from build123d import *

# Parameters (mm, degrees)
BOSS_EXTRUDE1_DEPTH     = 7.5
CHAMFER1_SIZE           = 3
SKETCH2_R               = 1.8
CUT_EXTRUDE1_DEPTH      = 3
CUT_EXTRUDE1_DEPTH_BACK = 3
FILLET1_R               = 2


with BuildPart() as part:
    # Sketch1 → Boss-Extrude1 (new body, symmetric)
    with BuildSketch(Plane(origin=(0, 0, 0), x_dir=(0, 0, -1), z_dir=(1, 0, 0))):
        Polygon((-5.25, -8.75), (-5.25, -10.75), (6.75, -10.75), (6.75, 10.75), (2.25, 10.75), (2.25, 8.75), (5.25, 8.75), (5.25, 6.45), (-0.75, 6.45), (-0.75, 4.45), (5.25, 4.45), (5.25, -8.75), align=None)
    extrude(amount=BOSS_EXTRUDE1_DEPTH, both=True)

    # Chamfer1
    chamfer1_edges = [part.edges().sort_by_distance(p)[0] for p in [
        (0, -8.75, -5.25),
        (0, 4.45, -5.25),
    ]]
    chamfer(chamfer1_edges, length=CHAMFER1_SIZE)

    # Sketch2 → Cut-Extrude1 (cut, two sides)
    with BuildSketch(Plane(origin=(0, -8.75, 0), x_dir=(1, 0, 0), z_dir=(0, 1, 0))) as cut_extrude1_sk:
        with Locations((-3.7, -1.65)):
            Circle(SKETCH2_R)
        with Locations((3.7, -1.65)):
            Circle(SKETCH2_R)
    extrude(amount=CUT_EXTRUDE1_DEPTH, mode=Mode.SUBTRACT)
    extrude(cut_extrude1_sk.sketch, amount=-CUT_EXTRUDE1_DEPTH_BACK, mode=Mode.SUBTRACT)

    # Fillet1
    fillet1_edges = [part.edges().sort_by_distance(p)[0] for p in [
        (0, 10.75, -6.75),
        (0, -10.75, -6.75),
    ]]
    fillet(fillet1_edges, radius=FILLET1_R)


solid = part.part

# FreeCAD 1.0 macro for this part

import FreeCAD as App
import Part
import Sketcher
from FreeCAD import Vector


def edges_at(feature, points):
    """Names of the edges that pass closest to the given points."""
    edges = feature.Shape.Edges
    near = lambda p: min(range(len(edges)), key=lambda i: edges[i].distToShape(Part.Vertex(*p))[0])
    return sorted({f"Edge{near(p) + 1}" for p in points})

doc = App.newDocument("Part")
body = doc.addObject("PartDesign::Body", "Body")

# Sketch on YZ plane
sketch1 = body.newObject("Sketcher::SketchObject", "Sketch")
sketch1.AttachmentSupport = (doc.getObject("YZ_Plane"), [""])
sketch1.MapMode = "FlatFace"
sketch1.addGeometry([
    Part.LineSegment(Vector(-8.75, 5.25, 0), Vector(-10.75, 5.25, 0)),  # 0
    Part.LineSegment(Vector(-10.75, 5.25, 0), Vector(-10.75, -6.75, 0)),  # 1
    Part.LineSegment(Vector(-10.75, -6.75, 0), Vector(10.75, -6.75, 0)),  # 2
    Part.LineSegment(Vector(10.75, -6.75, 0), Vector(10.75, -2.25, 0)),  # 3
    Part.LineSegment(Vector(10.75, -2.25, 0), Vector(8.75, -2.25, 0)),  # 4
    Part.LineSegment(Vector(8.75, -2.25, 0), Vector(8.75, -5.25, 0)),  # 5
    Part.LineSegment(Vector(8.75, -5.25, 0), Vector(6.45, -5.25, 0)),  # 6
    Part.LineSegment(Vector(6.45, -5.25, 0), Vector(6.45, 0.75, 0)),  # 7
    Part.LineSegment(Vector(6.45, 0.75, 0), Vector(4.45, 0.75, 0)),  # 8
    Part.LineSegment(Vector(4.45, 0.75, 0), Vector(4.45, -5.25, 0)),  # 9
    Part.LineSegment(Vector(4.45, -5.25, 0), Vector(-8.75, -5.25, 0)),  # 10
    Part.LineSegment(Vector(-8.75, -5.25, 0), Vector(-8.75, 5.25, 0)),  # 11
], False)
sketch1.addConstraint([
    Sketcher.Constraint("Coincident", 0, 2, 1, 1),
    Sketcher.Constraint("Coincident", 1, 2, 2, 1),
    Sketcher.Constraint("Coincident", 2, 2, 3, 1),
    Sketcher.Constraint("Coincident", 3, 2, 4, 1),
    Sketcher.Constraint("Coincident", 4, 2, 5, 1),
    Sketcher.Constraint("Coincident", 5, 2, 6, 1),
    Sketcher.Constraint("Coincident", 6, 2, 7, 1),
    Sketcher.Constraint("Coincident", 7, 2, 8, 1),
    Sketcher.Constraint("Coincident", 8, 2, 9, 1),
    Sketcher.Constraint("Coincident", 9, 2, 10, 1),
    Sketcher.Constraint("Coincident", 10, 2, 11, 1),
    Sketcher.Constraint("Coincident", 11, 2, 0, 1),
    Sketcher.Constraint("Horizontal", 0),
    Sketcher.Constraint("Vertical", 1),
    Sketcher.Constraint("Horizontal", 2),
    Sketcher.Constraint("Vertical", 3),
    Sketcher.Constraint("Horizontal", 4),
    Sketcher.Constraint("Vertical", 5),
    Sketcher.Constraint("Horizontal", 6),
    Sketcher.Constraint("Vertical", 7),
    Sketcher.Constraint("Horizontal", 8),
    Sketcher.Constraint("Vertical", 9),
    Sketcher.Constraint("Horizontal", 10),
    Sketcher.Constraint("Vertical", 11),
    Sketcher.Constraint("Symmetric", 5, 2, 11, 2, -1, 1),
    Sketcher.Constraint("Horizontal", 6, 2, 9, 2),
    Sketcher.Constraint("Equal", 0, 4),
    Sketcher.Constraint("Equal", 4, 8),
    Sketcher.Constraint("DistanceX", 0, 2, 0, 1, 2.0),
    Sketcher.Constraint("DistanceY", 1, 2, 1, 1, 12.0),
    Sketcher.Constraint("DistanceY", 5, 2, 5, 1, 3.0),
    Sketcher.Constraint("DistanceY", 7, 1, 7, 2, 6.0),
    Sketcher.Constraint("DistanceX", 2, 1, 2, 2, 21.5),
    Sketcher.Constraint("DistanceX", 6, 2, 6, 1, 2.3),
    Sketcher.Constraint("DistanceY", 3, 1, 3, 2, 4.5),
])
pad1 = body.newObject("PartDesign::Pad", "Pad")
pad1.Profile = sketch1
pad1.Length = 15
pad1.Midplane = True
doc.recompute()

chamfer = body.newObject("PartDesign::Chamfer", "Chamfer")
chamfer.Base = (pad1, edges_at(pad1, [(0, -8.75, -5.25), (0, 4.45, -5.25)]))
chamfer.Size = 3

# Sketch on XZ plane
sketch2 = body.newObject("Sketcher::SketchObject", "Sketch001")
sketch2.AttachmentSupport = (doc.getObject("XZ_Plane"), [""])
sketch2.MapMode = "FlatFace"
sketch2.AttachmentOffset = App.Placement(Vector(0, 0, 8.75), App.Rotation())
sketch2.addGeometry([
    Part.Circle(Vector(-3.7, 1.65, 0), Vector(0, 0, 1), 1.8),
    Part.Circle(Vector(3.7, 1.65, 0), Vector(0, 0, 1), 1.8),
], False)
sketch2.addConstraint([
    Sketcher.Constraint("Equal", 0, 1),
    Sketcher.Constraint("Symmetric", 0, 3, 1, 3, -2),
    Sketcher.Constraint("Diameter", 0, 3.6),
    Sketcher.Constraint("DistanceX", 0, 3, -1, 1, 3.7),
    Sketcher.Constraint("DistanceY", -1, 1, 0, 3, 1.65),
])
pocket1 = body.newObject("PartDesign::Pocket", "Pocket")
pocket1.Profile = sketch2
pocket1.Type = "TwoLengths"
pocket1.Length = 3
pocket1.Length2 = 3
doc.recompute()

fillet = body.newObject("PartDesign::Fillet", "Fillet")
fillet.Base = (pocket1, edges_at(pocket1, [(0, 10.75, -6.75), (0, -10.75, -6.75)]))
fillet.Radius = 2

doc.recompute()
